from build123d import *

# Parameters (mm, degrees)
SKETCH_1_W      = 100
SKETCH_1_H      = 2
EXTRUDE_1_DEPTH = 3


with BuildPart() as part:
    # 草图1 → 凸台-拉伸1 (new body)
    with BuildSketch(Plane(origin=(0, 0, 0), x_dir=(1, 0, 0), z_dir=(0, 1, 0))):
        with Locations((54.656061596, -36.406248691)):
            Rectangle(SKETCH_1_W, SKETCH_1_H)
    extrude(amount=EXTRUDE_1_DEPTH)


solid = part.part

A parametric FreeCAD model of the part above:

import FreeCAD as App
import Part
import Sketcher

V = App.Vector


def add_polygon(sketch, points):
    """Adds a closed chain of lines whose ends are joined by coincident constraints."""
    first, n = sketch.GeometryCount, len(points)
    for a, b in zip(points, points[1:] + points[:1]):
        sketch.addGeometry(Part.LineSegment(App.Vector(*a, 0), App.Vector(*b, 0)), False)
    for i in range(n):
        sketch.addConstraint(Sketcher.Constraint("Coincident", first + i, 2, first + (i + 1) % n, 1))

doc = App.newDocument("Part")
params = doc.addObject("Spreadsheet::Sheet", "Params")
for row, (alias, value) in enumerate([
    ("sketch1_width", "100 mm"),
    ("sketch1_height", "2 mm"),
    ("pad1_length", "3 mm"),
], start=1):
    params.set(f"A{row}", alias)
    params.set(f"B{row}", "=" + value)
    params.setAlias(f"B{row}", alias)

body = doc.addObject("PartDesign::Body", "Body")

sketch1 = doc.addObject("Sketcher::SketchObject", "Sketch")
body.addObject(sketch1)
sketch1.AttachmentSupport = (doc.XZ_Plane, [""])
sketch1.MapMode = "FlatFace"
add_polygon(sketch1, [(4.656062, 35.406249), (4.656062, 37.406249), (104.656062, 37.406249), (104.656062, 35.406249)])
sketch1.addConstraint([
    Sketcher.Constraint("Vertical", 0),
    Sketcher.Constraint("Horizontal", 1),
    Sketcher.Constraint("Vertical", 2),
    Sketcher.Constraint("Horizontal", 3),
    Sketcher.Constraint("DistanceX", 1, 1, 1, 2, 100.0),
    Sketcher.Constraint("DistanceY", 0, 1, 0, 2, 2.0),
    Sketcher.Constraint("DistanceX", -1, 1, 0, 2, 4.656062),
    Sketcher.Constraint("DistanceY", -1, 1, 0, 2, 37.406249),
])
sketch1.setExpression("Constraints[8]", "Params.sketch1_width")
sketch1.setExpression("Constraints[9]", "Params.sketch1_height")
pad1 = doc.addObject("PartDesign::Pad", "Pad")
body.addObject(pad1)
pad1.Profile = sketch1
pad1.setExpression("Length", "Params.pad1_length")
pad1.Reversed = True

doc.recompute()
